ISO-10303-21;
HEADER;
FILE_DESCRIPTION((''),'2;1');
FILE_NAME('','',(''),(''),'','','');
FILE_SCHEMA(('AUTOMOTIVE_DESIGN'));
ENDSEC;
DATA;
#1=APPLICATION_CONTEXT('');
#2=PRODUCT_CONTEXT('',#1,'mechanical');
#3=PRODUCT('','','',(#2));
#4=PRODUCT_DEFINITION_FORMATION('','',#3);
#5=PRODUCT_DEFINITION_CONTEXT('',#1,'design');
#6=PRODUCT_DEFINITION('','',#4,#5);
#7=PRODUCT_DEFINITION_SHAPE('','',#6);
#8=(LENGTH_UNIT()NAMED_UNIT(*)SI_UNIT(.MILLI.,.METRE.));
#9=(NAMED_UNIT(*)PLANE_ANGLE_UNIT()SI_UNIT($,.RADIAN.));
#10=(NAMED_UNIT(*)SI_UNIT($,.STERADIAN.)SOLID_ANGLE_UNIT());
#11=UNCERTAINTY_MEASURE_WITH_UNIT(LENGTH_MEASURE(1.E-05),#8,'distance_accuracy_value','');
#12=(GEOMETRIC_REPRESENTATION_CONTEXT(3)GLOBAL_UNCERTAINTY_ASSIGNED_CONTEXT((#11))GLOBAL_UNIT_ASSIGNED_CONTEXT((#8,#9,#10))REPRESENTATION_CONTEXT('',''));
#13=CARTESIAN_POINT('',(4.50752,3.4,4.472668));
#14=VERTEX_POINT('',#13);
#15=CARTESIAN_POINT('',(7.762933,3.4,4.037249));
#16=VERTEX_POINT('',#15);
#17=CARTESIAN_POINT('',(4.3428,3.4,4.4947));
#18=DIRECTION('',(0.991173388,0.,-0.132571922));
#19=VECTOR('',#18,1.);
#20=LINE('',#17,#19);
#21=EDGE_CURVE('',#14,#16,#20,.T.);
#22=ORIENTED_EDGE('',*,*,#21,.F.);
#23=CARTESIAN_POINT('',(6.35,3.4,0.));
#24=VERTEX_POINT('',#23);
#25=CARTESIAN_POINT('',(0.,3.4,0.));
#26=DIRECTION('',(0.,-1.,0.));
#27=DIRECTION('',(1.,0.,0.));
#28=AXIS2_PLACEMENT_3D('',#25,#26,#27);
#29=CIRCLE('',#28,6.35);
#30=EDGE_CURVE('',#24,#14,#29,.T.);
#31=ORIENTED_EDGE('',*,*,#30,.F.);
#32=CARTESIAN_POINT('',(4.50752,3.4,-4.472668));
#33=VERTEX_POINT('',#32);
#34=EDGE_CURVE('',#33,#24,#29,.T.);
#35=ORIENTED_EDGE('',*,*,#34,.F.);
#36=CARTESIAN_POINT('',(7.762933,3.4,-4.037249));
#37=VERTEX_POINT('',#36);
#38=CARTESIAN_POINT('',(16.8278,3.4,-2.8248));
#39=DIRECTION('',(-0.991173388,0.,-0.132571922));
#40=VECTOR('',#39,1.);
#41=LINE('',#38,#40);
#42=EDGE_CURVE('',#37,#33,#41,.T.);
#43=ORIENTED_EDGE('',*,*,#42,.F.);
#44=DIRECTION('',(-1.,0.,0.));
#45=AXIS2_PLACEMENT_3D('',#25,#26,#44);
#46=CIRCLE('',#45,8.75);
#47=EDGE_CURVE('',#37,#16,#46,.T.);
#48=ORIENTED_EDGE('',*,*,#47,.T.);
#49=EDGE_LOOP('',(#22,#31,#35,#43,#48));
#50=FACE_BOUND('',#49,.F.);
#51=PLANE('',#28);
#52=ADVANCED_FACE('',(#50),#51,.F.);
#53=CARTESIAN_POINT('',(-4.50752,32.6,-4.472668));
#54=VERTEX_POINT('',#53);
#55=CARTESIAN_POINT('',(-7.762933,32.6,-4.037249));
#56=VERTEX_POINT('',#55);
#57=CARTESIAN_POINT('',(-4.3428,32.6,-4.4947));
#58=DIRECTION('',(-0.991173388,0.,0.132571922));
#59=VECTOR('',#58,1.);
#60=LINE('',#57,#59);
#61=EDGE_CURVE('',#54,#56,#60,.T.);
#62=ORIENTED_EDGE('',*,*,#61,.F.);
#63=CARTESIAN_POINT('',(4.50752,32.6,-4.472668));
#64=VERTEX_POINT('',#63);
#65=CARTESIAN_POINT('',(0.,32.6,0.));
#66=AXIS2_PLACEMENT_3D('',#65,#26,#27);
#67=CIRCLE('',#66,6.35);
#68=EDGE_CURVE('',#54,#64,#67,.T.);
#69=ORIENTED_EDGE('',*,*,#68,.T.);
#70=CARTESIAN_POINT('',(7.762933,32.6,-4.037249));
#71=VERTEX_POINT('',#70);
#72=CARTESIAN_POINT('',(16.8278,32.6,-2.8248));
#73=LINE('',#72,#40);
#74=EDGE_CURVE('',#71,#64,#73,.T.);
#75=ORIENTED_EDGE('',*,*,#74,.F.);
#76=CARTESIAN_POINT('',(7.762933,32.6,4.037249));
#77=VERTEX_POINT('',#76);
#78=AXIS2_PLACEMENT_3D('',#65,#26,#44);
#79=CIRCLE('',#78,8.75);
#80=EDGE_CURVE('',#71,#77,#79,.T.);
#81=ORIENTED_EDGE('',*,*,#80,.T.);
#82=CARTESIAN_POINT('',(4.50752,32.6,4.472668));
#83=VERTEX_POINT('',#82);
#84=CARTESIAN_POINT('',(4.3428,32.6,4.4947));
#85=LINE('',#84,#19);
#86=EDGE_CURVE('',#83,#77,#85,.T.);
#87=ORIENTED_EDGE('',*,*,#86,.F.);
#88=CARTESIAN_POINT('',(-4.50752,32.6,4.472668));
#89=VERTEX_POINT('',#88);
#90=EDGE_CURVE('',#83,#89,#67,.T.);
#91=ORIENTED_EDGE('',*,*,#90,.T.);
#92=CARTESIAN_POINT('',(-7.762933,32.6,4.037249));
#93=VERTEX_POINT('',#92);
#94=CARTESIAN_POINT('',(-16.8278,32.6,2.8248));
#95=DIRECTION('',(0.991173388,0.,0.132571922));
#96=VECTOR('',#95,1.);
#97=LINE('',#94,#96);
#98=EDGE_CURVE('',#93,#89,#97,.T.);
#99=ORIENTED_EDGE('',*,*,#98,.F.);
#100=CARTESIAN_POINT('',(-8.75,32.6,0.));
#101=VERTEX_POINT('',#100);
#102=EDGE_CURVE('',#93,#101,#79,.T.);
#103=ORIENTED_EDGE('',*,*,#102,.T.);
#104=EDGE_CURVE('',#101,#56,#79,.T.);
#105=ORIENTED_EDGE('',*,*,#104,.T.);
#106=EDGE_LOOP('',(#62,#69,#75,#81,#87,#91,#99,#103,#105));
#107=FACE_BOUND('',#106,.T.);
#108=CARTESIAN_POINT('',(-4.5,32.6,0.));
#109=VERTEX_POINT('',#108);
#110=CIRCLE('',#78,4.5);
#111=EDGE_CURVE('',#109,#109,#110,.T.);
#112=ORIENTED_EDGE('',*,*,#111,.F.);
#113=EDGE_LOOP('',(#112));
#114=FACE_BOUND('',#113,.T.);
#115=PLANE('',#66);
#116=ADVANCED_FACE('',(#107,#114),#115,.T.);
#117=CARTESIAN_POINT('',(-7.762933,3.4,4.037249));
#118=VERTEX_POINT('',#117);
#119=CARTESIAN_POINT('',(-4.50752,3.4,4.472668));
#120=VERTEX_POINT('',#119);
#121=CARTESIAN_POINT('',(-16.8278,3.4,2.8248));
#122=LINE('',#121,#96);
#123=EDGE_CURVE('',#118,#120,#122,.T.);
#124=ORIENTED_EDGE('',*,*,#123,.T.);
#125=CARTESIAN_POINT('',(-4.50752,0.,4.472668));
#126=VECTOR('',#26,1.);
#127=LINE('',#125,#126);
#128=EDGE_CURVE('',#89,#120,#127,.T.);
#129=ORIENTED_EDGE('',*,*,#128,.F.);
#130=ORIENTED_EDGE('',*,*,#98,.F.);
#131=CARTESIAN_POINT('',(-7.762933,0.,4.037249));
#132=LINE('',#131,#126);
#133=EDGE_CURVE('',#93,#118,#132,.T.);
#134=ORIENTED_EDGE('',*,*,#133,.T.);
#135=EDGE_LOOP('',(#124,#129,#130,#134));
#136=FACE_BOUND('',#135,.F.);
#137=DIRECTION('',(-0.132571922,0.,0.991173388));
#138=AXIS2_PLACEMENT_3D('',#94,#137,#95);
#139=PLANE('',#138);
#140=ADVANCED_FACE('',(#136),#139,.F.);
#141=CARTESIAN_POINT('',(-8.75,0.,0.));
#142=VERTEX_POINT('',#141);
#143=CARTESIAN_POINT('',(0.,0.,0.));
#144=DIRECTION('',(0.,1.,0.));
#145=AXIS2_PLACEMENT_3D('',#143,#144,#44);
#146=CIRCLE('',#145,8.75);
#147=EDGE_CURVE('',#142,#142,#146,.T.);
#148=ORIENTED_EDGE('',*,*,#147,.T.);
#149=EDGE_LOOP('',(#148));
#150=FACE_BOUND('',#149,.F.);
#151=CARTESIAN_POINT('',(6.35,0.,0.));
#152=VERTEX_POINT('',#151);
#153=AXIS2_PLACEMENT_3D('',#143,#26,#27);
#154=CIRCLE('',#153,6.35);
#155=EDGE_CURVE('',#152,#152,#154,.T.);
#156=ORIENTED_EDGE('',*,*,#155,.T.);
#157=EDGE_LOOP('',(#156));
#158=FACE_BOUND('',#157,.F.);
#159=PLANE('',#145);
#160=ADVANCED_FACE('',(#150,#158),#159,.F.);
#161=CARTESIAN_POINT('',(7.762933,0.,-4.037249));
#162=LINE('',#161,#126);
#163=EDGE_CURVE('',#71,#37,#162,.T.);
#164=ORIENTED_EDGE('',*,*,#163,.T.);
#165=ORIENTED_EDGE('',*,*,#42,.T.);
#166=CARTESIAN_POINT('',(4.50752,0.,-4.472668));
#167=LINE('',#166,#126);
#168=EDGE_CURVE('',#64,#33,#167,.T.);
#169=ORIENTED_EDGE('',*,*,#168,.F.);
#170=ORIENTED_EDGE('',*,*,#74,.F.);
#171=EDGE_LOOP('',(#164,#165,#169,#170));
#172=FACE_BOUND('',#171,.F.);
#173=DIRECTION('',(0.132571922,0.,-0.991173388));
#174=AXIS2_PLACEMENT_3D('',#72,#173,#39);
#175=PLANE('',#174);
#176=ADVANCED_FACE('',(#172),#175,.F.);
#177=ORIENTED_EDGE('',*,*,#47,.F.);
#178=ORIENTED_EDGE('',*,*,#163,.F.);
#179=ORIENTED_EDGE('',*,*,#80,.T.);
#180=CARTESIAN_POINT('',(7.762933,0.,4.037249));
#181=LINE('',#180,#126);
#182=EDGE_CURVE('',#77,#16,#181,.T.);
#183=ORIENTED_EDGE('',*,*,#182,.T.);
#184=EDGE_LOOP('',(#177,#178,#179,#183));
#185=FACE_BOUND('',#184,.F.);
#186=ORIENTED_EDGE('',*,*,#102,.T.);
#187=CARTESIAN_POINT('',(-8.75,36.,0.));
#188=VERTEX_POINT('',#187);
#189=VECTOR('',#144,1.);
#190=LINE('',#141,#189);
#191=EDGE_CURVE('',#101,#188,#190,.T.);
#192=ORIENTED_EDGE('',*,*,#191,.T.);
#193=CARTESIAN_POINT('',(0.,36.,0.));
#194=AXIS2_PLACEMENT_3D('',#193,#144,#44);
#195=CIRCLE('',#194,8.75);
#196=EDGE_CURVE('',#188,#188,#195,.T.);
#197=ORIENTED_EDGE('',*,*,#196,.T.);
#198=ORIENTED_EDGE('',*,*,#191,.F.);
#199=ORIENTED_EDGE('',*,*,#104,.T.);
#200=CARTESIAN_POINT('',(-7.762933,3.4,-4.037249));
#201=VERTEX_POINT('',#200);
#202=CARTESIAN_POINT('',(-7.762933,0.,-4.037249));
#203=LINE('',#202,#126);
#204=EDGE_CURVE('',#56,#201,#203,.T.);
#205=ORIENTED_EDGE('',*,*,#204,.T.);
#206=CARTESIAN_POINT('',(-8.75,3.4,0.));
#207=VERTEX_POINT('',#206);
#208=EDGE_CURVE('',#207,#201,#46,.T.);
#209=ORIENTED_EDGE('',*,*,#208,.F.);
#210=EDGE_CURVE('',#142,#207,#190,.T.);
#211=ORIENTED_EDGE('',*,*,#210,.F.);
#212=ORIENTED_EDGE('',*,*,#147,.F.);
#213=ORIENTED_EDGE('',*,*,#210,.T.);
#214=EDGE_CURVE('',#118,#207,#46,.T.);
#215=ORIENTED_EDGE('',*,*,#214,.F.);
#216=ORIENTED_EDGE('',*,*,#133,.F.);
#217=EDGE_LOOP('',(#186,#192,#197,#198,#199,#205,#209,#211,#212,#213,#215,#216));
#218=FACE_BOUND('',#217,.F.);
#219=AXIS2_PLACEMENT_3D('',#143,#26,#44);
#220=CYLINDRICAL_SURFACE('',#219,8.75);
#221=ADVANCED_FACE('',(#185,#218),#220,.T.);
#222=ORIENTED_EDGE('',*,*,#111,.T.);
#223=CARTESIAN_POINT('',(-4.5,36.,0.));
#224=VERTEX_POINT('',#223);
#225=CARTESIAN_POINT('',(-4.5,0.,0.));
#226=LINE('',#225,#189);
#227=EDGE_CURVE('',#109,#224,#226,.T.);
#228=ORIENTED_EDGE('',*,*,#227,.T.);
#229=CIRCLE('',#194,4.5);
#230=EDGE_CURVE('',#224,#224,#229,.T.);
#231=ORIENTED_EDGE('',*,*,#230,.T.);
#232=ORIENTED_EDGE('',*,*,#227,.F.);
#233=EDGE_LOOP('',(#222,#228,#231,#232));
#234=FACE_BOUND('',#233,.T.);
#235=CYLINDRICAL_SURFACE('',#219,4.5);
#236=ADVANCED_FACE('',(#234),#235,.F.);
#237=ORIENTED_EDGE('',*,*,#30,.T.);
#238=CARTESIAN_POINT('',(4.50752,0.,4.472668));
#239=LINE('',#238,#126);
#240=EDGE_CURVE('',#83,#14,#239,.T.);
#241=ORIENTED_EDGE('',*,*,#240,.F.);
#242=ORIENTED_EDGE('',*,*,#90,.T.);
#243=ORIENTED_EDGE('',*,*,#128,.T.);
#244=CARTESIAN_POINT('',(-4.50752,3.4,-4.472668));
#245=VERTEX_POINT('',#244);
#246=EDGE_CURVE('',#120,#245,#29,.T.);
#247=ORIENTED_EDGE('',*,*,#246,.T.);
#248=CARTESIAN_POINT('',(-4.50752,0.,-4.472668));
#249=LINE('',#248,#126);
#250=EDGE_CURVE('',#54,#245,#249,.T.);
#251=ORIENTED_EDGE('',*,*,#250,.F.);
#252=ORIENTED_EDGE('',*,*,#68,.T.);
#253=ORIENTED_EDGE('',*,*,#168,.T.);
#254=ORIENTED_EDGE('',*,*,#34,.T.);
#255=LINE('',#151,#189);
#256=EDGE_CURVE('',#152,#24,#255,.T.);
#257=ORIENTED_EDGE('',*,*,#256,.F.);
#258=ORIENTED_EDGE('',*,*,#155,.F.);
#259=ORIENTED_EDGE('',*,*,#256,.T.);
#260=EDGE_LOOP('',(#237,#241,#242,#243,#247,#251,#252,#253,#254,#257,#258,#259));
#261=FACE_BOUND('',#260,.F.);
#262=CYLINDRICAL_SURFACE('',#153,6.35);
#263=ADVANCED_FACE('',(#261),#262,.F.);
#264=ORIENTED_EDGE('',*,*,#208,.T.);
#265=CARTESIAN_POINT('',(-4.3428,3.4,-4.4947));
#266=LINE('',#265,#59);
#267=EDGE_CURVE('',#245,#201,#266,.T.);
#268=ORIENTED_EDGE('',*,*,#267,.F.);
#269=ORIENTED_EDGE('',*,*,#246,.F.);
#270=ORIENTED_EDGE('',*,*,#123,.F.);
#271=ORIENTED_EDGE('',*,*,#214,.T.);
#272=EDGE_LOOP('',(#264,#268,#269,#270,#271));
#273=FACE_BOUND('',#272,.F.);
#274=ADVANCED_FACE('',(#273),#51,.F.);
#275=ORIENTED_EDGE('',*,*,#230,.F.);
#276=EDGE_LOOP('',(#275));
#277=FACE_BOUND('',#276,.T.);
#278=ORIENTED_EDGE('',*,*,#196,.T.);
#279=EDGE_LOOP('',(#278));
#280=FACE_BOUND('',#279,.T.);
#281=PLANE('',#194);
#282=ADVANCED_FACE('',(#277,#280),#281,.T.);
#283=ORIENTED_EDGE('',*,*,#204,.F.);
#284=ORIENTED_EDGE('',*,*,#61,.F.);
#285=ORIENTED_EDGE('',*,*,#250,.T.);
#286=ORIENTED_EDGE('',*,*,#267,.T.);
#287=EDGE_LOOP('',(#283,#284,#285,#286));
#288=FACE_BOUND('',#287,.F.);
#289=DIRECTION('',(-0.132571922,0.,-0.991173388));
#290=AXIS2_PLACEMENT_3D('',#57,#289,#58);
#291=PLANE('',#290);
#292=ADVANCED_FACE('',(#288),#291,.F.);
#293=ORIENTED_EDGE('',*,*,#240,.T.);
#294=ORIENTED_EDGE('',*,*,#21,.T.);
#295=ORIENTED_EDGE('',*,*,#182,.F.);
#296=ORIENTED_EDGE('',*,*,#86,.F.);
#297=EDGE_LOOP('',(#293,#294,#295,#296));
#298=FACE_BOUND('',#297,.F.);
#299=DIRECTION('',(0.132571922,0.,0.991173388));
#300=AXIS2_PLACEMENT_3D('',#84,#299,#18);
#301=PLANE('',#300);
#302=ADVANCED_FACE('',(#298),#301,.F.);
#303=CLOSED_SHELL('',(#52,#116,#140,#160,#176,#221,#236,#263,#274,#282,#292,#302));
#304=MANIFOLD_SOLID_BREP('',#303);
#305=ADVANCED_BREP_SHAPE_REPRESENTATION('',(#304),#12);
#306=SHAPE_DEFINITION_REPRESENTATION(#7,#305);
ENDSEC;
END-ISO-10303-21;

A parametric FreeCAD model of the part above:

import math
import FreeCAD as App
import Part
import Sketcher

V = App.Vector
Q = App.Units.Quantity

doc = App.newDocument("Part")
body = doc.addObject("PartDesign::Body", "Body")

# Sketch on XZ plane
sketch1 = doc.addObject("Sketcher::SketchObject", "Sketch")
body.addObject(sketch1)
sketch1.AttachmentSupport = (doc.XZ_Plane, [""])
sketch1.MapMode = "FlatFace"
sketch1.addGeometry(Part.Circle(V(0, 0, 0), V(0, 0, 1), 8.8), False)
sketch1.addGeometry(Part.Circle(V(0, 0, 0), V(0, 0, 1), 4.5), False)
sketch1.addConstraint(Sketcher.Constraint("Coincident", 0, 3, -1, 1))
sketch1.addConstraint(Sketcher.Constraint("Coincident", 1, 3, -1, 1))
sketch1.addConstraint(Sketcher.Constraint("Diameter", 1, Q("9 mm")))
sketch1.addConstraint(Sketcher.Constraint("Diameter", 0, Q("17.5 mm")))
pad1 = doc.addObject("PartDesign::Pad", "Pad")
body.addObject(pad1)
pad1.Profile = sketch1
pad1.Length = 36
pad1.Reversed = True

# Sketch on XZ plane
sketch2 = doc.addObject("Sketcher::SketchObject", "Sketch001")
body.addObject(sketch2)
sketch2.AttachmentSupport = (doc.XZ_Plane, [""])
sketch2.MapMode = "FlatFace"
sketch2.addGeometry(Part.Circle(V(0, 0, 0), V(0, 0, 1), 6), False)
sketch2.addConstraint(Sketcher.Constraint("Coincident", 0, 3, -1, 1))
sketch2.addConstraint(Sketcher.Constraint("Diameter", 0, Q("12.7 mm")))
pocket1 = doc.addObject("PartDesign::Pocket", "Pocket")
body.addObject(pocket1)
pocket1.Profile = sketch2
pocket1.Length = 32.6

# Sketch on XZ plane
sketch3 = doc.addObject("Sketcher::SketchObject", "Sketch002")
body.addObject(sketch3)
sketch3.AttachmentSupport = (doc.XZ_Plane, [""])
sketch3.MapMode = "FlatFace"
sketch3.AttachmentOffset = App.Placement(V(0, 0, -32.6), App.Rotation())
sketch3.addGeometry(Part.LineSegment(V(-16.8, -2.8, 0), V(-4.3, -4.5, 0)), False)
sketch3.addGeometry(Part.ArcOfCircle(Part.Circle(V(0, 0, 0), V(0, 0, 1), 6.2), math.radians(-134), math.radians(-46)), False)
sketch3.addGeometry(Part.LineSegment(V(4.3, -4.5, 0), V(16.8, -2.8, 0)), False)
sketch3.addGeometry(Part.ArcOfCircle(Part.Circle(V(16.4, 0, 0), V(0, 0, 1), 2.8), math.radians(-82), math.radians(82)), False)
sketch3.addGeometry(Part.LineSegment(V(16.8, 2.8, 0), V(4.3, 4.5, 0)), False)
sketch3.addGeometry(Part.ArcOfCircle(Part.Circle(V(0, 0, 0), V(0, 0, 1), 6.2), math.radians(46), math.radians(134)), False)
sketch3.addGeometry(Part.LineSegment(V(-4.3, 4.5, 0), V(-16.8, 2.8, 0)), False)
sketch3.addGeometry(Part.ArcOfCircle(Part.Circle(V(-16.4, 0, 0), V(0, 0, 1), 2.8), math.radians(98), math.radians(262)), False)
sketch3.addConstraint(Sketcher.Constraint("Coincident", 0, 2, 1, 1))
sketch3.addConstraint(Sketcher.Constraint("Coincident", 1, 2, 2, 1))
sketch3.addConstraint(Sketcher.Constraint("Tangent", 2, 2, 3, 1))
sketch3.addConstraint(Sketcher.Constraint("Tangent", 3, 2, 4, 1))
sketch3.addConstraint(Sketcher.Constraint("Coincident", 4, 2, 5, 1))
sketch3.addConstraint(Sketcher.Constraint("Coincident", 5, 2, 6, 1))
sketch3.addConstraint(Sketcher.Constraint("Tangent", 6, 2, 7, 1))
sketch3.addConstraint(Sketcher.Constraint("Tangent", 7, 2, 0, 1))
sketch3.addConstraint(Sketcher.Constraint("Coincident", 1, 3, -1, 1))
sketch3.addConstraint(Sketcher.Constraint("Coincident", 5, 3, -1, 1))
sketch3.addConstraint(Sketcher.Constraint("Equal", 1, 5))
sketch3.addConstraint(Sketcher.Constraint("Equal", 3, 7))
sketch3.addConstraint(Sketcher.Constraint("Symmetric", 3, 3, 7, 3, -1, 1))
sketch3.addConstraint(Sketcher.Constraint("Symmetric", 3, 2, 6, 2, -2))
sketch3.addConstraint(Sketcher.Constraint("Parallel", 0, 4))
sketch3.addConstraint(Sketcher.Constraint("Parallel", 2, 6))
sketch3.addConstraint(Sketcher.Constraint("Radius", 1, Q("6.25 mm")))
sketch3.addConstraint(Sketcher.Constraint("Radius", 3, Q("2.85 mm")))
sketch3.addConstraint(Sketcher.Constraint("DistanceX", 7, 3, 3, 3, Q("32.9 mm")))
sketch3.addConstraint(Sketcher.Constraint("DistanceY", 1, 2, 2, 2, Q("1.67 mm")))
pocket2 = doc.addObject("PartDesign::Pocket", "Pocket001")
body.addObject(pocket2)
pocket2.Profile = sketch3
pocket2.Length = 29.2
pocket2.Reversed = True

doc.recompute()
